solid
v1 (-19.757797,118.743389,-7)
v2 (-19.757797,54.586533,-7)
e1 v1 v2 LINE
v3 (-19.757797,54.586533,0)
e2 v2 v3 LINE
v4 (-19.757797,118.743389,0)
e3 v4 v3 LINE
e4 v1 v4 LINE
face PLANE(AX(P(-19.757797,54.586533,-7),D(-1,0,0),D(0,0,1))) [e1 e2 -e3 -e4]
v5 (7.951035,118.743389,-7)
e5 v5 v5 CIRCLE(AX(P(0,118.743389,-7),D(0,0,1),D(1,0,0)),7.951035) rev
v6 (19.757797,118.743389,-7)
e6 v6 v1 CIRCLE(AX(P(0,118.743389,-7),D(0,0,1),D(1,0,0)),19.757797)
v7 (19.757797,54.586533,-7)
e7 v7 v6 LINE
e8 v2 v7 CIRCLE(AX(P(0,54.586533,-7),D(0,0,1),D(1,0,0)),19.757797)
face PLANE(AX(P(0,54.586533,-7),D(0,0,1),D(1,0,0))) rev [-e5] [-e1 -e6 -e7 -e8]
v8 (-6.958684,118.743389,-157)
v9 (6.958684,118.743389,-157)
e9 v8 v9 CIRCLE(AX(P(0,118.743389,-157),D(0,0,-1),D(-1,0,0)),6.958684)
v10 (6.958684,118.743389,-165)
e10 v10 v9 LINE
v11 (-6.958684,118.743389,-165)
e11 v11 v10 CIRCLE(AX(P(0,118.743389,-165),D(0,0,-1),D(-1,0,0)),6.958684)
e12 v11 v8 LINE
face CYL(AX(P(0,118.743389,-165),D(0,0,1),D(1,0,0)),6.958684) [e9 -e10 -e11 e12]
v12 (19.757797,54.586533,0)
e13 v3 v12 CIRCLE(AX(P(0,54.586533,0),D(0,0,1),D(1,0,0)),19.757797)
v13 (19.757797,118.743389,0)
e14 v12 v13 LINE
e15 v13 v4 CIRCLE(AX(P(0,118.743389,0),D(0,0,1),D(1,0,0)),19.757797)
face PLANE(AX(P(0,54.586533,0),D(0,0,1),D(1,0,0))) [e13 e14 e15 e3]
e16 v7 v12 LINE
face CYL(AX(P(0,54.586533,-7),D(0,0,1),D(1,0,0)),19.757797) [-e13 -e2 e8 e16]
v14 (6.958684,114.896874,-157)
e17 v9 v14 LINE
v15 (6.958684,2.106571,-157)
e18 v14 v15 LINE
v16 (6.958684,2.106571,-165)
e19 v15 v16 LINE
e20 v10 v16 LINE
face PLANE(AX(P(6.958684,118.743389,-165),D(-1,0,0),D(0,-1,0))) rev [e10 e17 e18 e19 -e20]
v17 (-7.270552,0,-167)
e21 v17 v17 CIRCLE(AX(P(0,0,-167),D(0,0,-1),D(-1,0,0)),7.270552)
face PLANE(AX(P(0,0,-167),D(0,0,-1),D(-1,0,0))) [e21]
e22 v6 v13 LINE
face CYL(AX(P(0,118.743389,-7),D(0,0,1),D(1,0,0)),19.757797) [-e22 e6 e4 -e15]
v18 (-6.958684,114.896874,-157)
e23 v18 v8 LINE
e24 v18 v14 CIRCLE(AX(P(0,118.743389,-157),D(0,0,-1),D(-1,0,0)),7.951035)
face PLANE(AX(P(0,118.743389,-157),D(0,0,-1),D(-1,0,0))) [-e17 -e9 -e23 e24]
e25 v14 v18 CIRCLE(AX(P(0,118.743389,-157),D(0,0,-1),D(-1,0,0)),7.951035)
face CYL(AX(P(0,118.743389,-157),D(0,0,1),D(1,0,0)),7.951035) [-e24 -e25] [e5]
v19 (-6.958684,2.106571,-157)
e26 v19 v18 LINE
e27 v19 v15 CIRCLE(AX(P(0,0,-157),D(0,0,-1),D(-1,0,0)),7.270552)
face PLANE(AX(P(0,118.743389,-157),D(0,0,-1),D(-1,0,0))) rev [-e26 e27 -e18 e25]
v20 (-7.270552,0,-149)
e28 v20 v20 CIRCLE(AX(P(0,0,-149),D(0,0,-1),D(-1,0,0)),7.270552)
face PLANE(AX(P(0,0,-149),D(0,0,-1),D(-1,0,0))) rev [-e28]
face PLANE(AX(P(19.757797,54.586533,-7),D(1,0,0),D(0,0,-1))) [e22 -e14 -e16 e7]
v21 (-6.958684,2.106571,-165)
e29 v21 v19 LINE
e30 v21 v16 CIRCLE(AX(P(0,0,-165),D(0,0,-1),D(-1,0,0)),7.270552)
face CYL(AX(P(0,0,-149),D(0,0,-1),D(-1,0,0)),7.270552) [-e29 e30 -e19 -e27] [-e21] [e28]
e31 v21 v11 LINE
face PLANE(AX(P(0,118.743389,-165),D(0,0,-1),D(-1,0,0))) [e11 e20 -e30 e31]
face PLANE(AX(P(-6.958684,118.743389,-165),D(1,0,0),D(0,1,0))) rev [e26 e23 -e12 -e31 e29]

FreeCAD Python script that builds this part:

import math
import FreeCAD as App
import Part
import Sketcher
from FreeCAD import Vector
Q = App.Units.Quantity

doc = App.newDocument("Part")
body = doc.addObject("PartDesign::Body", "Body")

# Sketch on XY plane
sketch1 = doc.addObject("Sketcher::SketchObject", "Sketch")
body.addObject(sketch1)
sketch1.AttachmentSupport = (doc.XY_Plane, [""])
sketch1.MapMode = "FlatFace"
sketch1.addGeometry(Part.LineSegment(Vector(-20, 119, 0), Vector(-20, 55, 0)), False)
sketch1.addGeometry(Part.ArcOfCircle(Part.Circle(Vector(0, 55, 0), Vector(0, 0, 1), 20), math.radians(-180), math.radians(0)), False)
sketch1.addGeometry(Part.LineSegment(Vector(20, 55, 0), Vector(20, 119, 0)), False)
sketch1.addGeometry(Part.ArcOfCircle(Part.Circle(Vector(0, 119, 0), Vector(0, 0, 1), 20), math.radians(0), math.radians(180)), False)
sketch1.addConstraint(Sketcher.Constraint("Tangent", 0, 2, 1, 1))
sketch1.addConstraint(Sketcher.Constraint("Tangent", 1, 2, 2, 1))
sketch1.addConstraint(Sketcher.Constraint("Tangent", 2, 2, 3, 1))
sketch1.addConstraint(Sketcher.Constraint("Tangent", 3, 2, 0, 1))
sketch1.addConstraint(Sketcher.Constraint("Vertical", 0))
sketch1.addConstraint(Sketcher.Constraint("Vertical", 2))
sketch1.addConstraint(Sketcher.Constraint("PointOnObject", 1, 3, -2))
sketch1.addConstraint(Sketcher.Constraint("Radius", 1, Q("19.757797 mm")))
sketch1.addConstraint(Sketcher.Constraint("DistanceY", 0, 2, 0, 1, Q("64.156857 mm")))
sketch1.addConstraint(Sketcher.Constraint("DistanceY", -1, 1, 3, 3, Q("118.743389 mm")))
pad1 = doc.addObject("PartDesign::Pad", "Pad")
body.addObject(pad1)
pad1.Profile = sketch1
pad1.Length = 7
pad1.Reversed = True

# Sketch on XY plane
sketch2 = doc.addObject("Sketcher::SketchObject", "Sketch001")
body.addObject(sketch2)
sketch2.AttachmentSupport = (doc.XY_Plane, [""])
sketch2.MapMode = "FlatFace"
sketch2.AttachmentOffset = App.Placement(Vector(0, 0, -7), App.Rotation())
sketch2.addGeometry(Part.Circle(Vector(0, 119, 0), Vector(0, 0, 1), 8), False)
sketch2.addConstraint(Sketcher.Constraint("PointOnObject", 0, 3, -2))
sketch2.addConstraint(Sketcher.Constraint("Diameter", 0, Q("15.902071 mm")))
sketch2.addConstraint(Sketcher.Constraint("DistanceY", -1, 1, 0, 3, Q("118.74339 mm")))
pad2 = doc.addObject("PartDesign::Pad", "Pad001")
body.addObject(pad2)
pad2.Profile = sketch2
pad2.Length = 150
pad2.Reversed = True

# Sketch on XY plane
sketch3 = doc.addObject("Sketcher::SketchObject", "Sketch002")
body.addObject(sketch3)
sketch3.AttachmentSupport = (doc.XY_Plane, [""])
sketch3.MapMode = "FlatFace"
sketch3.AttachmentOffset = App.Placement(Vector(0, 0, -157), App.Rotation())
sketch3.addGeometry(Part.LineSegment(Vector(-7, 0, 0), Vector(-7, 119, 0)), False)
sketch3.addGeometry(Part.ArcOfCircle(Part.Circle(Vector(0, 119, 0), Vector(0, 0, 1), 7), math.radians(0), math.radians(180)), False)
sketch3.addGeometry(Part.LineSegment(Vector(7, 119, 0), Vector(7, 0, 0)), False)
sketch3.addGeometry(Part.ArcOfCircle(Part.Circle(Vector(0, 0, 0), Vector(0, 0, 1), 7), math.radians(180), math.radians(360)), False)
sketch3.addConstraint(Sketcher.Constraint("Tangent", 0, 2, 1, 2))
sketch3.addConstraint(Sketcher.Constraint("Tangent", 1, 1, 2, 1))
sketch3.addConstraint(Sketcher.Constraint("Tangent", 2, 2, 3, 2))
sketch3.addConstraint(Sketcher.Constraint("Tangent", 3, 1, 0, 1))
sketch3.addConstraint(Sketcher.Constraint("Vertical", 0))
sketch3.addConstraint(Sketcher.Constraint("Vertical", 2))
sketch3.addConstraint(Sketcher.Constraint("Coincident", 3, 3, -1, 1))
sketch3.addConstraint(Sketcher.Constraint("Radius", 1, Q("6.958684 mm")))
sketch3.addConstraint(Sketcher.Constraint("DistanceY", 0, 1, 0, 2, Q("118.74339 mm")))
pad3 = doc.addObject("PartDesign::Pad", "Pad002")
body.addObject(pad3)
pad3.Profile = sketch3
pad3.Length = 8
pad3.Reversed = True

# Sketch on XY plane
sketch4 = doc.addObject("Sketcher::SketchObject", "Sketch003")
body.addObject(sketch4)
sketch4.AttachmentSupport = (doc.XY_Plane, [""])
sketch4.MapMode = "FlatFace"
sketch4.AttachmentOffset = App.Placement(Vector(0, 0, -165), App.Rotation())
sketch4.addGeometry(Part.Circle(Vector(0, 0, 0), Vector(0, 0, 1), 7), False)
sketch4.addConstraint(Sketcher.Constraint("Coincident", 0, 3, -1, 1))
sketch4.addConstraint(Sketcher.Constraint("Diameter", 0, Q("14.541103 mm")))
pad4 = doc.addObject("PartDesign::Pad", "Pad003")
body.addObject(pad4)
pad4.Profile = sketch4
pad4.Type = "TwoLengths"
pad4.Length = 2
pad4.Length2 = 16
pad4.Reversed = True

doc.recompute()
